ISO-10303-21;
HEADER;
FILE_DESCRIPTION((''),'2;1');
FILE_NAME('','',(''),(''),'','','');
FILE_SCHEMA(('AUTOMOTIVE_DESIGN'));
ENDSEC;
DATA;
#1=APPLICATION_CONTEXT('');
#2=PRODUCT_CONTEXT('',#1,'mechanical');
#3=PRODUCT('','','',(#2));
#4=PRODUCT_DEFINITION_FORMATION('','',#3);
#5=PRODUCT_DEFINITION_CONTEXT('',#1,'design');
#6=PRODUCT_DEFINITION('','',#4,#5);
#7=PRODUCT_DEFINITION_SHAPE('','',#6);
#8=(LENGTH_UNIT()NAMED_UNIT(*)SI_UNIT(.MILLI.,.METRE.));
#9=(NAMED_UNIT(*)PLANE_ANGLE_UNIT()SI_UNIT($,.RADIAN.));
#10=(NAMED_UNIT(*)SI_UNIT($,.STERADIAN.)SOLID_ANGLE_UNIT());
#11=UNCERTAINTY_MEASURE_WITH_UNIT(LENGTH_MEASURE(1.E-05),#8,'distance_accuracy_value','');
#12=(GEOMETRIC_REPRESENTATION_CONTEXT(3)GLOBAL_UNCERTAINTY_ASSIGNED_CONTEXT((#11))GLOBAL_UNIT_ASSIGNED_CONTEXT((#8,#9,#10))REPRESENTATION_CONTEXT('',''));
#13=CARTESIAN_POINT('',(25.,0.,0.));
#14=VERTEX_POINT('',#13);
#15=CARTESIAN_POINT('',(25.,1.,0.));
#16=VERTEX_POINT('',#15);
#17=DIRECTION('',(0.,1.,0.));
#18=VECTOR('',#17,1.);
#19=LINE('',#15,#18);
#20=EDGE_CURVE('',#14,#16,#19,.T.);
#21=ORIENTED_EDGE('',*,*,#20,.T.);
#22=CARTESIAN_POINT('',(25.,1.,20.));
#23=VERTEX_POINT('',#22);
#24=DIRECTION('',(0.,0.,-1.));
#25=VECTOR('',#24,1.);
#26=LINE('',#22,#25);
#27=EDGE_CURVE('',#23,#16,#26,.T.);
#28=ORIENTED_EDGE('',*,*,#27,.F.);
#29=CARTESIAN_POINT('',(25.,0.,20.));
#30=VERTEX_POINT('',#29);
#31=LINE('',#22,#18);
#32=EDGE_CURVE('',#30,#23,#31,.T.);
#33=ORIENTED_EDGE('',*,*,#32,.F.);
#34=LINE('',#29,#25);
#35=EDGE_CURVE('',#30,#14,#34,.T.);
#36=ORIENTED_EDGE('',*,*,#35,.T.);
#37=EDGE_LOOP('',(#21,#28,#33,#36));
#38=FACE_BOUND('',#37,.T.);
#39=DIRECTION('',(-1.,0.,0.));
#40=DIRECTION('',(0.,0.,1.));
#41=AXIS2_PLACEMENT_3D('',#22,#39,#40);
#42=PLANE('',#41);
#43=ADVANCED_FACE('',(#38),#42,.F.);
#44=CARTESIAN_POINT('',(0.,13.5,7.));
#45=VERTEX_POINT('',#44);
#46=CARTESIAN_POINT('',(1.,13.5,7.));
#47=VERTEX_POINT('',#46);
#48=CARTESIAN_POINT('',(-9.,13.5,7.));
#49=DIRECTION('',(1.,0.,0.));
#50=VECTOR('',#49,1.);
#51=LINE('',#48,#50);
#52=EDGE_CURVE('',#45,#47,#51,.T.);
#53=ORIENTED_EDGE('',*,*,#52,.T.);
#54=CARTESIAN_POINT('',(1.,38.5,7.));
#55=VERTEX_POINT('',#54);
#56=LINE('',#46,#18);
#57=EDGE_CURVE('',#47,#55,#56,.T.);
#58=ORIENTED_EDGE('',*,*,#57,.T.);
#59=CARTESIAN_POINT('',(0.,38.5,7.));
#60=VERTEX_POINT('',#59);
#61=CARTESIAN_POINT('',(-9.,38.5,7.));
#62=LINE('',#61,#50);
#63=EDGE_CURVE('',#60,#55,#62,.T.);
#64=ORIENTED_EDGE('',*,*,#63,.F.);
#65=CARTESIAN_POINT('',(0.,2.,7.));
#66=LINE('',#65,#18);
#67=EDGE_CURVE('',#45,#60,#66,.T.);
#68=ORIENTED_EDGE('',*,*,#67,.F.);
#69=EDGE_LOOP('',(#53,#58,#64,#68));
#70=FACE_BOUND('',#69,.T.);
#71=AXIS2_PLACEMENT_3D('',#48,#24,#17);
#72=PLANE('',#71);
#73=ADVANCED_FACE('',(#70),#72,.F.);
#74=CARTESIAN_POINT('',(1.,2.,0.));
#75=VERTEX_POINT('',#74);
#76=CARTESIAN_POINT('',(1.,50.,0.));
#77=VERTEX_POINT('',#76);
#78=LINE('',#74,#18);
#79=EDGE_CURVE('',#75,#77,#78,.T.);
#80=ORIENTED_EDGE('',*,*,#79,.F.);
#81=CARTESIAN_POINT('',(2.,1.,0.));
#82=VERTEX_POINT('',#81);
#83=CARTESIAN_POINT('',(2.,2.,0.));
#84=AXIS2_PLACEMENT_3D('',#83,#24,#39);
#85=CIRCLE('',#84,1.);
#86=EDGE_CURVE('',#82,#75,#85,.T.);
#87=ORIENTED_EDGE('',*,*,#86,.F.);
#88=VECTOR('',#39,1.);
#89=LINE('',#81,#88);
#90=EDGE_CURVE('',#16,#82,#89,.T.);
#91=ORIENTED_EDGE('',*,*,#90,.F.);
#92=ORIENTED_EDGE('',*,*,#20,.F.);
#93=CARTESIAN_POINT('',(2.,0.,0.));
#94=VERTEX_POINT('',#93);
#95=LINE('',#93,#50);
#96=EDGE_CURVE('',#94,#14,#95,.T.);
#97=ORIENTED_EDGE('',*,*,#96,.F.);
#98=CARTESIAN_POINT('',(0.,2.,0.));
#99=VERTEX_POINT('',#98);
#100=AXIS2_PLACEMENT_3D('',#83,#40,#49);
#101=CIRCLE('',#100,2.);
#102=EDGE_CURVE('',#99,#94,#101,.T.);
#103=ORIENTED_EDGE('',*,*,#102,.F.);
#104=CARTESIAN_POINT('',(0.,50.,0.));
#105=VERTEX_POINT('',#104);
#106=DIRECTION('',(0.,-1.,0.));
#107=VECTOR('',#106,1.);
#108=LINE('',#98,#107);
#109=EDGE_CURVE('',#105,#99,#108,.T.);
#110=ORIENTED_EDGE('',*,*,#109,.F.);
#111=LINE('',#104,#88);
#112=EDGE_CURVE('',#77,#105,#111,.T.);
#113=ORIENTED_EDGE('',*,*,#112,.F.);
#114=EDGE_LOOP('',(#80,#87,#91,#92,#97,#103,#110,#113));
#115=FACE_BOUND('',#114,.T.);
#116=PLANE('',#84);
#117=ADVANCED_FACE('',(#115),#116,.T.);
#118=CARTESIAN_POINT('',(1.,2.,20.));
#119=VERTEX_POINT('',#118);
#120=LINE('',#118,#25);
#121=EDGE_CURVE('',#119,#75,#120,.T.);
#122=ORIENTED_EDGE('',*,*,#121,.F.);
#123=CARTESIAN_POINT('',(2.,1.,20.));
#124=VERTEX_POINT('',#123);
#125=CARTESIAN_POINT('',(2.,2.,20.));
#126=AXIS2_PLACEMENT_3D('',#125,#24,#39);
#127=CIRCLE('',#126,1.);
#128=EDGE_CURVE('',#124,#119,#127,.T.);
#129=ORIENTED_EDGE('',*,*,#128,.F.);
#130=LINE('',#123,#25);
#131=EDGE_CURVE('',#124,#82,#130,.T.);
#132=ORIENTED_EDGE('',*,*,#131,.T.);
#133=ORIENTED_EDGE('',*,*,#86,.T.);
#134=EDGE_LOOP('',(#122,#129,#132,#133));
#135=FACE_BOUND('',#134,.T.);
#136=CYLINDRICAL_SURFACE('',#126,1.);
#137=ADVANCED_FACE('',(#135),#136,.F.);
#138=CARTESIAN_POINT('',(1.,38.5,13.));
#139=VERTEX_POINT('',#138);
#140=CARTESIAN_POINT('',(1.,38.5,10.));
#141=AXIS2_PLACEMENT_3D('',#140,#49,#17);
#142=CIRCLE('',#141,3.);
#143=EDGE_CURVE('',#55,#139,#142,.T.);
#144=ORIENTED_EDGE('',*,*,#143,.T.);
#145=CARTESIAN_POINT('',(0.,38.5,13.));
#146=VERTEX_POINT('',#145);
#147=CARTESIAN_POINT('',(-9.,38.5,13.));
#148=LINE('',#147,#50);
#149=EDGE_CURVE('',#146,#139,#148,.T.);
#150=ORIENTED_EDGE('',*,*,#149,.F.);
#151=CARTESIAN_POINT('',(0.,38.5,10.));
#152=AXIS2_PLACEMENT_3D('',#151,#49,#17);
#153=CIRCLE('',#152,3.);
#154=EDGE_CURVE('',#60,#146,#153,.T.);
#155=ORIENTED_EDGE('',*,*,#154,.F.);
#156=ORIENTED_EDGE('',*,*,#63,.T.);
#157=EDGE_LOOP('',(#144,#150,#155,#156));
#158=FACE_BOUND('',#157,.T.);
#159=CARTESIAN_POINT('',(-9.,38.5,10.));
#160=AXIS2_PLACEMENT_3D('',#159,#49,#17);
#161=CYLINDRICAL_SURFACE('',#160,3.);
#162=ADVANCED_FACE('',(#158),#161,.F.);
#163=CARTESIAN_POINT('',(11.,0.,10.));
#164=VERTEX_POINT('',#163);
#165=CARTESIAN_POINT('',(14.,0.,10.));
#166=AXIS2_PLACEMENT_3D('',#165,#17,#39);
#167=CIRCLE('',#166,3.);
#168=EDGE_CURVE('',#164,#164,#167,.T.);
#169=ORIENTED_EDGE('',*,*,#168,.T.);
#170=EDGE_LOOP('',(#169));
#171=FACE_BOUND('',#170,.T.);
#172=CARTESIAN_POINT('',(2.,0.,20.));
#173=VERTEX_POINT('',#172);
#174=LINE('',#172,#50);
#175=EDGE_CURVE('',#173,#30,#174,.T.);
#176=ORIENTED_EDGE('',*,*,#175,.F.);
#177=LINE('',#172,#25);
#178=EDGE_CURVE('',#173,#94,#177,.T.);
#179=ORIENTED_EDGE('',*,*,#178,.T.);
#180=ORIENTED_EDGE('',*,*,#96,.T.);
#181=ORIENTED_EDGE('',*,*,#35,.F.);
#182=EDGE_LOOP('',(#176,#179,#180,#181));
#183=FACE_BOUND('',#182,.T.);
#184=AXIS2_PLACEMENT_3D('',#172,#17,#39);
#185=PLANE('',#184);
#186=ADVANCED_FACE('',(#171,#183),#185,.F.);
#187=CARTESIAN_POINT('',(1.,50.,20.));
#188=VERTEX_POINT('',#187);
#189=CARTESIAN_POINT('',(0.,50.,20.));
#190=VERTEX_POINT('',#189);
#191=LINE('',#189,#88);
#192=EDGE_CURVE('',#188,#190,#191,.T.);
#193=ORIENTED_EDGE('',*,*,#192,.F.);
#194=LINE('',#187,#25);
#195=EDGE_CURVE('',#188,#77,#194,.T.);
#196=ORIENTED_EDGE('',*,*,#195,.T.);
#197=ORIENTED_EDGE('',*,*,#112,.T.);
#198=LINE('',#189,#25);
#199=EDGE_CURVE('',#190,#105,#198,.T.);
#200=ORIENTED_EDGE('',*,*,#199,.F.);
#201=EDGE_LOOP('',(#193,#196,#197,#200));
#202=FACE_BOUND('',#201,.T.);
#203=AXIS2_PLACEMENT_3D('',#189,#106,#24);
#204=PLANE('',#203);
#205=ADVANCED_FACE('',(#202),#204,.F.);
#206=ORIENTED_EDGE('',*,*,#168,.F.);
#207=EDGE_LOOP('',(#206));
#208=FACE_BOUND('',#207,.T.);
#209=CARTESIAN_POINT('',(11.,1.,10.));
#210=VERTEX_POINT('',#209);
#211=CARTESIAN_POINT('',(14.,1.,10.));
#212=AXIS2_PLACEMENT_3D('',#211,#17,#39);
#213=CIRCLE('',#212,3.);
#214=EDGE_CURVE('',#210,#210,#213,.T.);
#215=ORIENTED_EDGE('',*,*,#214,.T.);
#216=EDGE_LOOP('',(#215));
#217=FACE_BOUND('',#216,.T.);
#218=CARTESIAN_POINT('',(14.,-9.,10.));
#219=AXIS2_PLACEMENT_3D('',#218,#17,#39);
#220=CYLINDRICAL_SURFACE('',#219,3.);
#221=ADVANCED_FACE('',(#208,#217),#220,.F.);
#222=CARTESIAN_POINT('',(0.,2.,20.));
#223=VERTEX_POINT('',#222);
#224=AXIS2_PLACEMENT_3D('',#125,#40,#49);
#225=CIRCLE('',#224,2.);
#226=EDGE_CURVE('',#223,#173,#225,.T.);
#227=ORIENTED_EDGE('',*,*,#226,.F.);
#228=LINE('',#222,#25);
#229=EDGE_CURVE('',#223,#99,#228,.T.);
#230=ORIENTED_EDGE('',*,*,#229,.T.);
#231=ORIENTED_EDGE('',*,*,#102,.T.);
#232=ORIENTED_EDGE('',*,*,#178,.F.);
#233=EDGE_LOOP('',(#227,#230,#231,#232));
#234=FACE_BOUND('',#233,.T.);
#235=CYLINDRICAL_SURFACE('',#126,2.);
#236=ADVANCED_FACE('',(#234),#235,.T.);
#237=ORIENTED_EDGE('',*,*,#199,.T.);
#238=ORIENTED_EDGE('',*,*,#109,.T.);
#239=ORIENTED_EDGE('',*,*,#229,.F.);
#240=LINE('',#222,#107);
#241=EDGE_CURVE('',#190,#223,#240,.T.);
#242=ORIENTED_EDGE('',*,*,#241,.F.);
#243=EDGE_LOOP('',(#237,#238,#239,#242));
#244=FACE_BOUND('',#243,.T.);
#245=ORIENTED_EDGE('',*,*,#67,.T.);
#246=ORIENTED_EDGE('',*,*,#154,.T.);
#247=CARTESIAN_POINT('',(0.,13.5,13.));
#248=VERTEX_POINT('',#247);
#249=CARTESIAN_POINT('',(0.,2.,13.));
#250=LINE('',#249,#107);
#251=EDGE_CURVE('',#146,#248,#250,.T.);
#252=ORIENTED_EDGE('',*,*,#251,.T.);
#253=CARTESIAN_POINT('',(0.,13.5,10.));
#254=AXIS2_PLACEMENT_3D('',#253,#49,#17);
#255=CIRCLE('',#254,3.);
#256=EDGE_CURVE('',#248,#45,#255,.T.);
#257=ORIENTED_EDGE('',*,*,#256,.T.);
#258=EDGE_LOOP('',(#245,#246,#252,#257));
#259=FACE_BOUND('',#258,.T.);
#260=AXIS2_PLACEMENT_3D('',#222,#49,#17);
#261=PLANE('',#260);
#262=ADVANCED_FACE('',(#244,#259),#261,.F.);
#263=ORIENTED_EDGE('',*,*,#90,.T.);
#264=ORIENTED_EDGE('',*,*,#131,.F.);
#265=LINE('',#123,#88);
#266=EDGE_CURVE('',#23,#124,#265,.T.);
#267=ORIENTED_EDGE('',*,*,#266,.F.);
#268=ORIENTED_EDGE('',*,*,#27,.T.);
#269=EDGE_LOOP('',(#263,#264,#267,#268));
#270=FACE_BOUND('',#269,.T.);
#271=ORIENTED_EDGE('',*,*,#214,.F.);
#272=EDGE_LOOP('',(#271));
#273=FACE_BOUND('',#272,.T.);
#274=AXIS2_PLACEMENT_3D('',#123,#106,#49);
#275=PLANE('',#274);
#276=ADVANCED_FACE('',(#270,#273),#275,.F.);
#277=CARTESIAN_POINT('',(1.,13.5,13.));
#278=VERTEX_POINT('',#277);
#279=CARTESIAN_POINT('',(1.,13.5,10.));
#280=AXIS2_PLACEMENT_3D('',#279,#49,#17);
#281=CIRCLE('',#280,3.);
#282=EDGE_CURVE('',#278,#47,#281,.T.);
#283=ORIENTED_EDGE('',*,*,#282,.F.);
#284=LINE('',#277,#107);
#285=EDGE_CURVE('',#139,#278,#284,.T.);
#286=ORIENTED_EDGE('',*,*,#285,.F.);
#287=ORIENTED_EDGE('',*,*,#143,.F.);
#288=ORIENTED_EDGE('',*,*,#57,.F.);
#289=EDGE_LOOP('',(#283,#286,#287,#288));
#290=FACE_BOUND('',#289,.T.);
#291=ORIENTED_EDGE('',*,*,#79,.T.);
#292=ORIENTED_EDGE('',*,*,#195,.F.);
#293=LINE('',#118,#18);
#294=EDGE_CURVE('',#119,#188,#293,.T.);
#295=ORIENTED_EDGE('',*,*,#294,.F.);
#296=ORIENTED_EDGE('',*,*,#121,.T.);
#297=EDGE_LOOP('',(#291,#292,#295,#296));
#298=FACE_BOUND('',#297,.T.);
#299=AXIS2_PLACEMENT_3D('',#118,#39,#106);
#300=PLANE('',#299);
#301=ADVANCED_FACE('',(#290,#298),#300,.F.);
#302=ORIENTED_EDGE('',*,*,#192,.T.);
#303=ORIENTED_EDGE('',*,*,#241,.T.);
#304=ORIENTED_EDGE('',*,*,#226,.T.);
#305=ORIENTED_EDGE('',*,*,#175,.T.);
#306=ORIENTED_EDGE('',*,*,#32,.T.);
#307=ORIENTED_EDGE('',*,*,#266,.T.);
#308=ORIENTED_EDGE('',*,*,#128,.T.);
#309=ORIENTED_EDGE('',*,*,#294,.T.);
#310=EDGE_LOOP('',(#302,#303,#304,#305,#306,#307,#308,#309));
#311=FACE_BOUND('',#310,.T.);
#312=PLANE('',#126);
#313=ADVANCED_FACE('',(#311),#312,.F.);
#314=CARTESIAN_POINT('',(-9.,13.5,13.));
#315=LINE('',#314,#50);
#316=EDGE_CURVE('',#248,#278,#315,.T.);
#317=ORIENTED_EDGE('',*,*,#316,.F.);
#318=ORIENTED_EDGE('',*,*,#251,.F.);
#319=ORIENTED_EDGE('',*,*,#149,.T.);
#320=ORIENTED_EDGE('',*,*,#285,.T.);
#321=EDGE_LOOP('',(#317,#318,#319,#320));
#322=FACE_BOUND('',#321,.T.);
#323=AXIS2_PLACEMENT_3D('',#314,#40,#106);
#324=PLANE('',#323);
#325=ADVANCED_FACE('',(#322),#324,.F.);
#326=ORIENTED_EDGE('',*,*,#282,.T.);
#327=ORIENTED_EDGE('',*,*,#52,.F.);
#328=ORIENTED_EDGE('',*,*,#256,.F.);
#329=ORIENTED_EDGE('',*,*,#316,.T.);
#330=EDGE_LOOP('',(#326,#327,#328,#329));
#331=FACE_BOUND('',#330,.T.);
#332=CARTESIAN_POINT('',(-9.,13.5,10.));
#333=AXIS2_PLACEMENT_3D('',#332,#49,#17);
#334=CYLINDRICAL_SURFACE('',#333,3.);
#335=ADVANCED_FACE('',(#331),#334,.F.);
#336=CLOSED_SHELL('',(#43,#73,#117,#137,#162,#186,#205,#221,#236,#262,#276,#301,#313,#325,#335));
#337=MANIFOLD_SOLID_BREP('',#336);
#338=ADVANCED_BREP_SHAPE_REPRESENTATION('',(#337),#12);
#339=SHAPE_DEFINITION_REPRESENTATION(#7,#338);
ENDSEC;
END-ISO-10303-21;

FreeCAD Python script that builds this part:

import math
import FreeCAD as App
import Part
import Sketcher
from FreeCAD import Vector
Q = App.Units.Quantity

doc = App.newDocument("Part")
body = doc.addObject("PartDesign::Body", "Body")

# Sketch on XY plane
sketch1 = body.newObject("Sketcher::SketchObject", "Sketch")
sketch1.AttachmentSupport = (doc.getObject("XY_Plane"), [""])
sketch1.MapMode = "FlatFace"
sketch1.addGeometry(Part.LineSegment(Vector(0, 50, 0), Vector(0, 2, 0)), False)
sketch1.addGeometry(Part.ArcOfCircle(Part.Circle(Vector(2, 2, 0), Vector(0, 0, 1), 2), math.radians(-180), math.radians(-90)), False)
sketch1.addGeometry(Part.LineSegment(Vector(2, 0, 0), Vector(25, 0, 0)), False)
sketch1.addGeometry(Part.LineSegment(Vector(25, 0, 0), Vector(25, 1, 0)), False)
sketch1.addGeometry(Part.LineSegment(Vector(25, 1, 0), Vector(2, 1, 0)), False)
sketch1.addGeometry(Part.ArcOfCircle(Part.Circle(Vector(2, 2, 0), Vector(0, 0, 1), 1), math.radians(-180), math.radians(-90)), False)
sketch1.addGeometry(Part.LineSegment(Vector(1, 2, 0), Vector(1, 50, 0)), False)
sketch1.addGeometry(Part.LineSegment(Vector(1, 50, 0), Vector(0, 50, 0)), False)
sketch1.addConstraint(Sketcher.Constraint("Tangent", 0, 2, 1, 1))
sketch1.addConstraint(Sketcher.Constraint("Tangent", 1, 2, 2, 1))
sketch1.addConstraint(Sketcher.Constraint("Coincident", 2, 2, 3, 1))
sketch1.addConstraint(Sketcher.Constraint("Coincident", 3, 2, 4, 1))
sketch1.addConstraint(Sketcher.Constraint("Tangent", 4, 2, 5, 2))
sketch1.addConstraint(Sketcher.Constraint("Tangent", 5, 1, 6, 1))
sketch1.addConstraint(Sketcher.Constraint("Coincident", 6, 2, 7, 1))
sketch1.addConstraint(Sketcher.Constraint("Coincident", 7, 2, 0, 1))
sketch1.addConstraint(Sketcher.Constraint("Vertical", 0))
sketch1.addConstraint(Sketcher.Constraint("Horizontal", 2))
sketch1.addConstraint(Sketcher.Constraint("Vertical", 3))
sketch1.addConstraint(Sketcher.Constraint("Horizontal", 4))
sketch1.addConstraint(Sketcher.Constraint("Vertical", 6))
sketch1.addConstraint(Sketcher.Constraint("Horizontal", 7))
sketch1.addConstraint(Sketcher.Constraint("Coincident", 5, 3, 1, 3))
sketch1.addConstraint(Sketcher.Constraint("PointOnObject", 0, 2, -2))
sketch1.addConstraint(Sketcher.Constraint("PointOnObject", 1, 2, -1))
sketch1.addConstraint(Sketcher.Constraint("Radius", 1, Q("2 mm")))
sketch1.addConstraint(Sketcher.Constraint("Radius", 5, Q("1 mm")))
sketch1.addConstraint(Sketcher.Constraint("DistanceX", 2, 1, 2, 2, Q("23 mm")))
sketch1.addConstraint(Sketcher.Constraint("DistanceY", 0, 2, 0, 1, Q("48 mm")))
pad1 = body.newObject("PartDesign::Pad", "Pad")
pad1.Profile = sketch1
pad1.Length = 20

# Sketch on YZ plane
sketch2 = body.newObject("Sketcher::SketchObject", "Sketch001")
sketch2.AttachmentSupport = (doc.getObject("YZ_Plane"), [""])
sketch2.MapMode = "FlatFace"
sketch2.AttachmentOffset = App.Placement(Vector(0, 0, 1), App.Rotation())
sketch2.addGeometry(Part.LineSegment(Vector(38.5, 13, 0), Vector(13.5, 13, 0)), False)
sketch2.addGeometry(Part.ArcOfCircle(Part.Circle(Vector(13.5, 10, 0), Vector(0, 0, 1), 3), math.radians(90), math.radians(270)), False)
sketch2.addGeometry(Part.LineSegment(Vector(13.5, 7, 0), Vector(38.5, 7, 0)), False)
sketch2.addGeometry(Part.ArcOfCircle(Part.Circle(Vector(38.5, 10, 0), Vector(0, 0, 1), 3), math.radians(-90), math.radians(90)), False)
sketch2.addConstraint(Sketcher.Constraint("Tangent", 0, 2, 1, 1))
sketch2.addConstraint(Sketcher.Constraint("Tangent", 1, 2, 2, 1))
sketch2.addConstraint(Sketcher.Constraint("Tangent", 2, 2, 3, 1))
sketch2.addConstraint(Sketcher.Constraint("Tangent", 3, 2, 0, 1))
sketch2.addConstraint(Sketcher.Constraint("Horizontal", 0))
sketch2.addConstraint(Sketcher.Constraint("Horizontal", 2))
sketch2.addConstraint(Sketcher.Constraint("Radius", 1, Q("3 mm")))
sketch2.addConstraint(Sketcher.Constraint("DistanceX", 0, 2, 0, 1, Q("25 mm")))
sketch2.addConstraint(Sketcher.Constraint("DistanceY", -1, 1, 1, 3, Q("10 mm")))
sketch2.addConstraint(Sketcher.Constraint("DistanceX", -1, 1, 1, 3, Q("13.5 mm")))
pocket1 = body.newObject("PartDesign::Pocket", "Pocket")
pocket1.Profile = sketch2
pocket1.Length = 10

# Sketch on XZ plane
sketch3 = body.newObject("Sketcher::SketchObject", "Sketch002")
sketch3.AttachmentSupport = (doc.getObject("XZ_Plane"), [""])
sketch3.MapMode = "FlatFace"
sketch3.AttachmentOffset = App.Placement(Vector(0, 0, -1), App.Rotation())
sketch3.addGeometry(Part.Circle(Vector(14, 10, 0), Vector(0, 0, 1), 3), False)
sketch3.addConstraint(Sketcher.Constraint("Diameter", 0, Q("6 mm")))
sketch3.addConstraint(Sketcher.Constraint("DistanceX", -1, 1, 0, 3, Q("14 mm")))
sketch3.addConstraint(Sketcher.Constraint("DistanceY", -1, 1, 0, 3, Q("10 mm")))
pocket2 = body.newObject("PartDesign::Pocket", "Pocket001")
pocket2.Profile = sketch3
pocket2.Length = 10
pocket2.Reversed = True

doc.recompute()
